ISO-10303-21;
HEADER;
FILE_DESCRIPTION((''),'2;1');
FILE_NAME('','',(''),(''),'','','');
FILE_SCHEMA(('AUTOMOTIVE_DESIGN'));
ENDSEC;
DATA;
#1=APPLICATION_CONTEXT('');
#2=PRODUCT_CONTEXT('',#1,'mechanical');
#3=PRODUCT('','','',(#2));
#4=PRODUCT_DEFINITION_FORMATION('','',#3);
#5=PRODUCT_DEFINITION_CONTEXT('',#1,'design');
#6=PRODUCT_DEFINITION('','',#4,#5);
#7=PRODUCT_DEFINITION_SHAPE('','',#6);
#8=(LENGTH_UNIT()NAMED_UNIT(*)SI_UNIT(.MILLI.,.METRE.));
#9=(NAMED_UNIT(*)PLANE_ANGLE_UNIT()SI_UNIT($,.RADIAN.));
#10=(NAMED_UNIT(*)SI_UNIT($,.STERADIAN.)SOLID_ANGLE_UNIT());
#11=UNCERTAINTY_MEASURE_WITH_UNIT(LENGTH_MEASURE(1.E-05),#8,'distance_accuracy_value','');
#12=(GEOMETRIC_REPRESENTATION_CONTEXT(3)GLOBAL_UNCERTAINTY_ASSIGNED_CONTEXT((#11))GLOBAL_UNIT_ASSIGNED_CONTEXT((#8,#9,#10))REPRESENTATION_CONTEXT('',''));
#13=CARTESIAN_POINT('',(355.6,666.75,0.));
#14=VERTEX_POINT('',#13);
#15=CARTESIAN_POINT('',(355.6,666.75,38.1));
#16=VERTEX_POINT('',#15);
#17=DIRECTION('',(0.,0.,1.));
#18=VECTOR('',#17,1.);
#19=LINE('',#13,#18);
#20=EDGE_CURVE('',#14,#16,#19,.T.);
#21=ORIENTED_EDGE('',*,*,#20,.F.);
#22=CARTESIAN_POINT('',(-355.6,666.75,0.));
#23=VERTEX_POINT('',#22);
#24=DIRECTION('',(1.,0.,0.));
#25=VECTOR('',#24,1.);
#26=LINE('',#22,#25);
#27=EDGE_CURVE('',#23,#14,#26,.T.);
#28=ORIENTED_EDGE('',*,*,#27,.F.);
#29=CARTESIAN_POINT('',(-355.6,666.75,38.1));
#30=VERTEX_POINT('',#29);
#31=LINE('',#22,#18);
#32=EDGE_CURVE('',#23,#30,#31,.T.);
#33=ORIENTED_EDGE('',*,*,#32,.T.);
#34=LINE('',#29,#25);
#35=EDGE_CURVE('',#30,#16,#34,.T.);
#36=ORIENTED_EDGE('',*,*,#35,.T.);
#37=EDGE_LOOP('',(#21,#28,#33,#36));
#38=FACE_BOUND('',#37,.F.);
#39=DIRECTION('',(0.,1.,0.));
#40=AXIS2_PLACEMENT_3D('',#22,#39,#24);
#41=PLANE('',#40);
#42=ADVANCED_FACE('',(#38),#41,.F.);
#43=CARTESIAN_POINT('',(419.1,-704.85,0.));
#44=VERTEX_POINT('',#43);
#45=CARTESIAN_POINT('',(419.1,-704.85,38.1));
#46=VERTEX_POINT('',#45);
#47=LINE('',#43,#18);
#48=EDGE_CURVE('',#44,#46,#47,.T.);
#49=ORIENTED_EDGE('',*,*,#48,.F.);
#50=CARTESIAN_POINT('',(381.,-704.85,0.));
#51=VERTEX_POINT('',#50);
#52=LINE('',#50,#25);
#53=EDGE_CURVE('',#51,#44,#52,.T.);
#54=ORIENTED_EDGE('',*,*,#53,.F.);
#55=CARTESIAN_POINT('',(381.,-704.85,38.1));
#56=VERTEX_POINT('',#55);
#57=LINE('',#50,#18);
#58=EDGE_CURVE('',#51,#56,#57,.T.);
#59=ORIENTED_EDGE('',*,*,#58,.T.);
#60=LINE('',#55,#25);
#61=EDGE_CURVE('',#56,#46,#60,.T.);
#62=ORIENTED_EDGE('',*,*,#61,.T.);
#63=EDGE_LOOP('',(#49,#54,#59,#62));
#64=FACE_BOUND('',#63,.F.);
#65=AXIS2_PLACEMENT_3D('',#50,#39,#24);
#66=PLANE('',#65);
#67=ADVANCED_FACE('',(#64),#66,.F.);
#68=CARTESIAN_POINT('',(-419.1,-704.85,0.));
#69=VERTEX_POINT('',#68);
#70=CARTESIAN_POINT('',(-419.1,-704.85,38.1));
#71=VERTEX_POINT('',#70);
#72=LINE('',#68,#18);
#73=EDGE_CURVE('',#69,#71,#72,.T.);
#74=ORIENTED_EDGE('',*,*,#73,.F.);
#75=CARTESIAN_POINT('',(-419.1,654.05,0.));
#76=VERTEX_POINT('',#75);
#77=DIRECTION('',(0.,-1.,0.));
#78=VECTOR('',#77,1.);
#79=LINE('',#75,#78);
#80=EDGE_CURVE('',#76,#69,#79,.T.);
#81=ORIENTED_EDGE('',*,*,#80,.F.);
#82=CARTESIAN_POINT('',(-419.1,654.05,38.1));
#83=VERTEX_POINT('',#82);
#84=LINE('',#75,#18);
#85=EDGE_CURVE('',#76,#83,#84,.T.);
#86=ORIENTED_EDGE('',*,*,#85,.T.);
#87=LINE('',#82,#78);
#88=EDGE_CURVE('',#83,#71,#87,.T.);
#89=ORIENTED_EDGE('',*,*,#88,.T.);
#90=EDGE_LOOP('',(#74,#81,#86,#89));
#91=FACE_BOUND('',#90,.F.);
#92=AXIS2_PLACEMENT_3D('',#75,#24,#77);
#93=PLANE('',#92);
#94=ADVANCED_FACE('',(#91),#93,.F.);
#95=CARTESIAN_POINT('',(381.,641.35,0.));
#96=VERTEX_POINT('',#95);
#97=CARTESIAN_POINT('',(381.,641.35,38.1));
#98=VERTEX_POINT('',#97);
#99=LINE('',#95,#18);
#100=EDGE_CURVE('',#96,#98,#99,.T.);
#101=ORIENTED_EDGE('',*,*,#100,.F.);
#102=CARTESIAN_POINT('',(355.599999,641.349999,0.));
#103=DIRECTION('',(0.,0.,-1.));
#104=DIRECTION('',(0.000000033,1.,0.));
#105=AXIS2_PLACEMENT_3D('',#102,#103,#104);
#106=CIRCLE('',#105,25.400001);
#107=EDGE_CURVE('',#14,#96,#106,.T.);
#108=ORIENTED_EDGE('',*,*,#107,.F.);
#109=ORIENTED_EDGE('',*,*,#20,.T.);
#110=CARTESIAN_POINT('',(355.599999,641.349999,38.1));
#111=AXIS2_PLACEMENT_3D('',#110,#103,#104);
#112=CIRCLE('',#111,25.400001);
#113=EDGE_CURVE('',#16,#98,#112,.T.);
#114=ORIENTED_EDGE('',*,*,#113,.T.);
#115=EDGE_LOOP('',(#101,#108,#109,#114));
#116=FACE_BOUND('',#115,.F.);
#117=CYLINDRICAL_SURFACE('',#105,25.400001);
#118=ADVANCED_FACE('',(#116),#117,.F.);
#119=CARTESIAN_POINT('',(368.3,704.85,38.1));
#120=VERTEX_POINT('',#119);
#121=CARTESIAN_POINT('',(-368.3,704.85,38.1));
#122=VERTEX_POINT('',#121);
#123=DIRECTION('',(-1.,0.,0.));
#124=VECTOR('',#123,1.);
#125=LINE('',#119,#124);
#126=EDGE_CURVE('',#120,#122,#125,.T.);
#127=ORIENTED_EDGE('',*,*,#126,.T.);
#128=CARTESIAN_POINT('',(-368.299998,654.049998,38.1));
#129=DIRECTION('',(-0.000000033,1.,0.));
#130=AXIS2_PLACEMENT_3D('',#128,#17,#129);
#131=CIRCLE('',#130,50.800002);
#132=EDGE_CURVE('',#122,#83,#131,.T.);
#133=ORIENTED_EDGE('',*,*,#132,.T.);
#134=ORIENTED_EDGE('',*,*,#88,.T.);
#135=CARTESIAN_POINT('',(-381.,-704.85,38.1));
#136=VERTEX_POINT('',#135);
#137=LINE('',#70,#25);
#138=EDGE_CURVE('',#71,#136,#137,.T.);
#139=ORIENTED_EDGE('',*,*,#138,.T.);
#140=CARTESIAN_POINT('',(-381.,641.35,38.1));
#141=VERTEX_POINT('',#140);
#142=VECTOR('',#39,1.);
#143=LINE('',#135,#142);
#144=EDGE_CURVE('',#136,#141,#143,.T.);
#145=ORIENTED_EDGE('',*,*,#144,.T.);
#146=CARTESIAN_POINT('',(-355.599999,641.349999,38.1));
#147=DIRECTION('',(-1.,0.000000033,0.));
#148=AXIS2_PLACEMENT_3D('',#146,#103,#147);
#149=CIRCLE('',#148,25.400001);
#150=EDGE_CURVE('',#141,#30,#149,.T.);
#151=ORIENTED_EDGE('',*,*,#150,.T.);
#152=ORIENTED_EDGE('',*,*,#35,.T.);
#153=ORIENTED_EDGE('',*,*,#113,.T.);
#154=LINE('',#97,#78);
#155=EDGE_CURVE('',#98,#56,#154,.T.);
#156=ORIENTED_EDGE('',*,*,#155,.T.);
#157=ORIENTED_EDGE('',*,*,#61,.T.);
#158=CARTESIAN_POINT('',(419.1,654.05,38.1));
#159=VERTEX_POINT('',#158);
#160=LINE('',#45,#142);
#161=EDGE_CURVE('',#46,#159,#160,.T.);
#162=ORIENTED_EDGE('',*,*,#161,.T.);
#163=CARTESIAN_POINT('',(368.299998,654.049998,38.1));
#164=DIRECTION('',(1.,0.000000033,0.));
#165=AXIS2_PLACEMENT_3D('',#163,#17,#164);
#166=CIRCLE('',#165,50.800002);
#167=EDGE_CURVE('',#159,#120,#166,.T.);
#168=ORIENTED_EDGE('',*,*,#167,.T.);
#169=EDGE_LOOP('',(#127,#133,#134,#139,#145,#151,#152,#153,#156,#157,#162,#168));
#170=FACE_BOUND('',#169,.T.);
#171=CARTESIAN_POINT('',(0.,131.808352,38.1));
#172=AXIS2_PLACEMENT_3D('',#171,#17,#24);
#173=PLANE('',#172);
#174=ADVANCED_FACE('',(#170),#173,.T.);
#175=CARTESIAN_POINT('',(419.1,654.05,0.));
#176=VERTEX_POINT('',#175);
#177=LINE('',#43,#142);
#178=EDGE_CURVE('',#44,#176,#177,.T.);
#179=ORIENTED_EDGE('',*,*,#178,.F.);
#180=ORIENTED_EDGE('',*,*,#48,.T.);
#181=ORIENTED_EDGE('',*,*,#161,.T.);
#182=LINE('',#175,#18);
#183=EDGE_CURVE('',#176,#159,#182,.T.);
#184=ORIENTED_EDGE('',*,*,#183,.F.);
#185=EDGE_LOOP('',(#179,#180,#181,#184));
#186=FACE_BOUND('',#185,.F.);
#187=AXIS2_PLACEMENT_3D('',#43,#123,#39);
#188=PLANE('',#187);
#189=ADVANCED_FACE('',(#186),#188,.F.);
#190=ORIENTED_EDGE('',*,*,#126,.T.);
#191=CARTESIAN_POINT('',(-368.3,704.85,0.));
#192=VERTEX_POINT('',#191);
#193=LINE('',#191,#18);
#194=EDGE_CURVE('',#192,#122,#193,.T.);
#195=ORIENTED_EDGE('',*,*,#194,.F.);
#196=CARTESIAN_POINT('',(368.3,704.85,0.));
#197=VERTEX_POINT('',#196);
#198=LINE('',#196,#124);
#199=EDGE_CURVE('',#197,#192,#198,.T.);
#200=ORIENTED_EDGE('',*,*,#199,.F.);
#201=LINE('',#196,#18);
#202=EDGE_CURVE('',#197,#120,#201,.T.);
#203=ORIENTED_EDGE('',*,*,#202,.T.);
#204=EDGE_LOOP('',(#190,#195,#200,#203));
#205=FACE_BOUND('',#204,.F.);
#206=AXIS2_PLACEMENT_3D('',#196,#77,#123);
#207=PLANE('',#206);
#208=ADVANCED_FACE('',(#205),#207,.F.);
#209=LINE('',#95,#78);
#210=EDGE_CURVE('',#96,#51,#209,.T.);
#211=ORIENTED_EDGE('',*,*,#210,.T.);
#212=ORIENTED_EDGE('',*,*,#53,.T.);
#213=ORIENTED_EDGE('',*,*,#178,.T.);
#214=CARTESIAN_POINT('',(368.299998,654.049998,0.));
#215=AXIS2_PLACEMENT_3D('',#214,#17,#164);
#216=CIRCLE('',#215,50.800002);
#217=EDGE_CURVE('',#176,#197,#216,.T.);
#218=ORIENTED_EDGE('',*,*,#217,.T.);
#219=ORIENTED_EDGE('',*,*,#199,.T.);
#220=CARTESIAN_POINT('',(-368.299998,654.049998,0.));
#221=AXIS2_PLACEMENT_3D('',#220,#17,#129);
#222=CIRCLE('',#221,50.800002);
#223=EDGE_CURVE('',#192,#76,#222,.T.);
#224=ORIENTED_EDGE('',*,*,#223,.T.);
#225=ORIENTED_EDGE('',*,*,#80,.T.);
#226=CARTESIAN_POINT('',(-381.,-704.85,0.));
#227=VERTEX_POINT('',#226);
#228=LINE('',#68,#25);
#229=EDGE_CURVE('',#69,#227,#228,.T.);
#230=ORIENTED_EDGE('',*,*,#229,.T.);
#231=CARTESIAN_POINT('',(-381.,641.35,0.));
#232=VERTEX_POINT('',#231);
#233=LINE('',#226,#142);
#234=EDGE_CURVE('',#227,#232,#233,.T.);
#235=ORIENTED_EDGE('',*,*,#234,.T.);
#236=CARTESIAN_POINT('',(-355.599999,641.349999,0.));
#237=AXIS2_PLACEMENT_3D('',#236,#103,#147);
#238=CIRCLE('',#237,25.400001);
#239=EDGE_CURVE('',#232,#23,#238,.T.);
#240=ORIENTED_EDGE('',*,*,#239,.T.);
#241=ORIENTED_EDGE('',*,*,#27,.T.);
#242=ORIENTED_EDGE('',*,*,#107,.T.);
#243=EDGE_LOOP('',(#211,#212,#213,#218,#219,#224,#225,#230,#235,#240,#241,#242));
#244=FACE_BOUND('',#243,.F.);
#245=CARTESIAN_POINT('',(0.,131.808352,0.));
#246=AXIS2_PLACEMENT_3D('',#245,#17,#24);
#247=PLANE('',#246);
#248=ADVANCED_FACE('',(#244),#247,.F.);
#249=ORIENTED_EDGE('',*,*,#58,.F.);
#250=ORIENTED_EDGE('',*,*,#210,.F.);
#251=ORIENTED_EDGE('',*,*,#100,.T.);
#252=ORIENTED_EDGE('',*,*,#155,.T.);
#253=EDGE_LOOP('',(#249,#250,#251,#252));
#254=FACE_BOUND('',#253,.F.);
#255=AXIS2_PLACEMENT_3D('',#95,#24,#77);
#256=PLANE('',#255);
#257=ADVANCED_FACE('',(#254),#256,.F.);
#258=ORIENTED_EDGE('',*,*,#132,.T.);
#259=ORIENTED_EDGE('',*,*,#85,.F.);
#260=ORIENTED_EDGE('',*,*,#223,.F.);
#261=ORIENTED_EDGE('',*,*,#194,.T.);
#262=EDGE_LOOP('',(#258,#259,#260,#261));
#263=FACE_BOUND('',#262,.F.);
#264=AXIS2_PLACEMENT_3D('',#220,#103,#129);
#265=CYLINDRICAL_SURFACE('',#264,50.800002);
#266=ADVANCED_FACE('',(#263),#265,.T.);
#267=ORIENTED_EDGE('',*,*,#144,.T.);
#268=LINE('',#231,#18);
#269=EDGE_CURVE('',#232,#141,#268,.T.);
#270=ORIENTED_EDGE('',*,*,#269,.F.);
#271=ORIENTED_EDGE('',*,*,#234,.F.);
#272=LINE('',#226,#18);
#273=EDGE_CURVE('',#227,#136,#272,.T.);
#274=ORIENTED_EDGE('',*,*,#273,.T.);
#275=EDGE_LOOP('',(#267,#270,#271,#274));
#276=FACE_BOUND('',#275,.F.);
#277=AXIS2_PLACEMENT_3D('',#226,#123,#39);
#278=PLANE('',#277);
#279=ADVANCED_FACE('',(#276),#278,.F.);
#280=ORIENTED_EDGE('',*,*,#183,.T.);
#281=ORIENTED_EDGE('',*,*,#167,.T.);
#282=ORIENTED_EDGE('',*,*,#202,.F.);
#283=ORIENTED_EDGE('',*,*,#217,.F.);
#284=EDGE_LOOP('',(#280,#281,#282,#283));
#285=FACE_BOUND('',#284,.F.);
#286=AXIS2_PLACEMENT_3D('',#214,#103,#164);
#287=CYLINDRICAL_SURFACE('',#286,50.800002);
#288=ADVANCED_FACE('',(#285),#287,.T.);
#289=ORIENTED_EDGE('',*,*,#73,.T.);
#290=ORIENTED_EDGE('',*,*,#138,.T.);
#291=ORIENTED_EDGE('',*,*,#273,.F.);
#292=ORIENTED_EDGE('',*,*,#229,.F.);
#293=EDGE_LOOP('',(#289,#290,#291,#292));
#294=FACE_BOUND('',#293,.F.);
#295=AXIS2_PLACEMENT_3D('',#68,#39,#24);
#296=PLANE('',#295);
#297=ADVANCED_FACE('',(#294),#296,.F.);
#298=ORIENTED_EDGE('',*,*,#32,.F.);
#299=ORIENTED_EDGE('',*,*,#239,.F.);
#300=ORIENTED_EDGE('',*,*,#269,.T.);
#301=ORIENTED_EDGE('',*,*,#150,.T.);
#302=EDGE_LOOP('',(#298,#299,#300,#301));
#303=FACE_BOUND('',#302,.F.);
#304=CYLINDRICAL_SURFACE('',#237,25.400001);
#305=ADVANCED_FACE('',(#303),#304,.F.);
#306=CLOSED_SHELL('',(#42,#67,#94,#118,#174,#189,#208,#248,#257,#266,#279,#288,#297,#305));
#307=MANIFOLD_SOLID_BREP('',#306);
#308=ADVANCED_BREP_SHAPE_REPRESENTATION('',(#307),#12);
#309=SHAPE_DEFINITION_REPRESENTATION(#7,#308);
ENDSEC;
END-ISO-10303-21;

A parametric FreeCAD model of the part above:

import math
import FreeCAD as App
import Part
import Sketcher
from FreeCAD import Vector
Q = App.Units.Quantity

doc = App.newDocument("Part")
params = doc.addObject("Spreadsheet::Sheet", "Params")
for row, (alias, value) in enumerate([
    ("sketch1_radius", "2.0000001 in"),
    ("sketch1_radius2", "1 in"),
    ("sketch1_width", "29 in"),
    ("sketch1_width2", "28 in"),
    ("sketch1_height", "53 in"),
    ("pad1_length", "1.5 in"),
], start=1):
    params.set(f"A{row}", alias)
    params.set(f"B{row}", "=" + value)
    params.setAlias(f"B{row}", alias)

body = doc.addObject("PartDesign::Body", "Body")

# Sketch on XY plane
sketch1 = doc.addObject("Sketcher::SketchObject", "Sketch")
body.addObject(sketch1)
sketch1.AttachmentSupport = (doc.XY_Plane, [""])
sketch1.MapMode = "FlatFace"
sketch1.addGeometry([
    Part.LineSegment(Vector(368, 705, 0), Vector(-368, 705, 0)),  # 0
    Part.ArcOfCircle(Part.Circle(Vector(-368, 654, 0), Vector(0, 0, 1), 51), math.radians(90), math.radians(180)),  # 1
    Part.LineSegment(Vector(-419, 654, 0), Vector(-419, -705, 0)),  # 2
    Part.LineSegment(Vector(-419, -705, 0), Vector(-381, -705, 0)),  # 3
    Part.LineSegment(Vector(-381, -705, 0), Vector(-381, 641, 0)),  # 4
    Part.ArcOfCircle(Part.Circle(Vector(-356, 641, 0), Vector(0, 0, 1), 25), math.radians(90), math.radians(180)),  # 5
    Part.LineSegment(Vector(-356, 667, 0), Vector(356, 667, 0)),  # 6
    Part.ArcOfCircle(Part.Circle(Vector(356, 641, 0), Vector(0, 0, 1), 25), math.radians(0), math.radians(90)),  # 7
    Part.LineSegment(Vector(381, 641, 0), Vector(381, -705, 0)),  # 8
    Part.LineSegment(Vector(381, -705, 0), Vector(419, -705, 0)),  # 9
    Part.LineSegment(Vector(419, -705, 0), Vector(419, 654, 0)),  # 10
    Part.ArcOfCircle(Part.Circle(Vector(368, 654, 0), Vector(0, 0, 1), 51), math.radians(0), math.radians(90)),  # 11
], False)
sketch1.addConstraint([
    Sketcher.Constraint("Tangent", 0, 2, 1, 1),
    Sketcher.Constraint("Tangent", 1, 2, 2, 1),
    Sketcher.Constraint("Coincident", 2, 2, 3, 1),
    Sketcher.Constraint("Coincident", 3, 2, 4, 1),
    Sketcher.Constraint("Tangent", 4, 2, 5, 2),
    Sketcher.Constraint("Tangent", 5, 1, 6, 1),
    Sketcher.Constraint("Tangent", 6, 2, 7, 2),
    Sketcher.Constraint("Tangent", 7, 1, 8, 1),
    Sketcher.Constraint("Coincident", 8, 2, 9, 1),
    Sketcher.Constraint("Coincident", 9, 2, 10, 1),
    Sketcher.Constraint("Tangent", 10, 2, 11, 1),
    Sketcher.Constraint("Tangent", 11, 2, 0, 1),
    Sketcher.Constraint("Horizontal", 0),
    Sketcher.Constraint("Vertical", 2),
    Sketcher.Constraint("Horizontal", 3),
    Sketcher.Constraint("Vertical", 4),
    Sketcher.Constraint("Horizontal", 6),
    Sketcher.Constraint("Vertical", 8),
    Sketcher.Constraint("Horizontal", 9),
    Sketcher.Constraint("Vertical", 10),
    Sketcher.Constraint("Equal", 5, 7),
    Sketcher.Constraint("Equal", 1, 11),
    Sketcher.Constraint("Symmetric", 3, 2, 8, 2, -2),
    Sketcher.Constraint("Equal", 3, 9),
    Sketcher.Constraint("Radius", 1, Q("2.0000001 in")),
    Sketcher.Constraint("Radius", 5, Q("1 in")),
    Sketcher.Constraint("DistanceX", 0, 2, 0, 1, Q("29 in")),
    Sketcher.Constraint("DistanceX", 6, 1, 6, 2, Q("28 in")),
    Sketcher.Constraint("DistanceY", 4, 1, 4, 2, Q("53 in")),
    Sketcher.Constraint("DistanceY", 2, 2, 2, 1, Q("53.5 in")),
    Sketcher.Constraint("DistanceY", -1, 1, 1, 3, Q("25.7499999 in")),
])
sketch1.setExpression("Constraints[24]", "Params.sketch1_radius")
sketch1.setExpression("Constraints[25]", "Params.sketch1_radius2")
sketch1.setExpression("Constraints[26]", "Params.sketch1_width")
sketch1.setExpression("Constraints[27]", "Params.sketch1_width2")
sketch1.setExpression("Constraints[28]", "Params.sketch1_height")
pad1 = doc.addObject("PartDesign::Pad", "Pad")
body.addObject(pad1)
pad1.Profile = sketch1
pad1.setExpression("Length", "Params.pad1_length")

doc.recompute()
